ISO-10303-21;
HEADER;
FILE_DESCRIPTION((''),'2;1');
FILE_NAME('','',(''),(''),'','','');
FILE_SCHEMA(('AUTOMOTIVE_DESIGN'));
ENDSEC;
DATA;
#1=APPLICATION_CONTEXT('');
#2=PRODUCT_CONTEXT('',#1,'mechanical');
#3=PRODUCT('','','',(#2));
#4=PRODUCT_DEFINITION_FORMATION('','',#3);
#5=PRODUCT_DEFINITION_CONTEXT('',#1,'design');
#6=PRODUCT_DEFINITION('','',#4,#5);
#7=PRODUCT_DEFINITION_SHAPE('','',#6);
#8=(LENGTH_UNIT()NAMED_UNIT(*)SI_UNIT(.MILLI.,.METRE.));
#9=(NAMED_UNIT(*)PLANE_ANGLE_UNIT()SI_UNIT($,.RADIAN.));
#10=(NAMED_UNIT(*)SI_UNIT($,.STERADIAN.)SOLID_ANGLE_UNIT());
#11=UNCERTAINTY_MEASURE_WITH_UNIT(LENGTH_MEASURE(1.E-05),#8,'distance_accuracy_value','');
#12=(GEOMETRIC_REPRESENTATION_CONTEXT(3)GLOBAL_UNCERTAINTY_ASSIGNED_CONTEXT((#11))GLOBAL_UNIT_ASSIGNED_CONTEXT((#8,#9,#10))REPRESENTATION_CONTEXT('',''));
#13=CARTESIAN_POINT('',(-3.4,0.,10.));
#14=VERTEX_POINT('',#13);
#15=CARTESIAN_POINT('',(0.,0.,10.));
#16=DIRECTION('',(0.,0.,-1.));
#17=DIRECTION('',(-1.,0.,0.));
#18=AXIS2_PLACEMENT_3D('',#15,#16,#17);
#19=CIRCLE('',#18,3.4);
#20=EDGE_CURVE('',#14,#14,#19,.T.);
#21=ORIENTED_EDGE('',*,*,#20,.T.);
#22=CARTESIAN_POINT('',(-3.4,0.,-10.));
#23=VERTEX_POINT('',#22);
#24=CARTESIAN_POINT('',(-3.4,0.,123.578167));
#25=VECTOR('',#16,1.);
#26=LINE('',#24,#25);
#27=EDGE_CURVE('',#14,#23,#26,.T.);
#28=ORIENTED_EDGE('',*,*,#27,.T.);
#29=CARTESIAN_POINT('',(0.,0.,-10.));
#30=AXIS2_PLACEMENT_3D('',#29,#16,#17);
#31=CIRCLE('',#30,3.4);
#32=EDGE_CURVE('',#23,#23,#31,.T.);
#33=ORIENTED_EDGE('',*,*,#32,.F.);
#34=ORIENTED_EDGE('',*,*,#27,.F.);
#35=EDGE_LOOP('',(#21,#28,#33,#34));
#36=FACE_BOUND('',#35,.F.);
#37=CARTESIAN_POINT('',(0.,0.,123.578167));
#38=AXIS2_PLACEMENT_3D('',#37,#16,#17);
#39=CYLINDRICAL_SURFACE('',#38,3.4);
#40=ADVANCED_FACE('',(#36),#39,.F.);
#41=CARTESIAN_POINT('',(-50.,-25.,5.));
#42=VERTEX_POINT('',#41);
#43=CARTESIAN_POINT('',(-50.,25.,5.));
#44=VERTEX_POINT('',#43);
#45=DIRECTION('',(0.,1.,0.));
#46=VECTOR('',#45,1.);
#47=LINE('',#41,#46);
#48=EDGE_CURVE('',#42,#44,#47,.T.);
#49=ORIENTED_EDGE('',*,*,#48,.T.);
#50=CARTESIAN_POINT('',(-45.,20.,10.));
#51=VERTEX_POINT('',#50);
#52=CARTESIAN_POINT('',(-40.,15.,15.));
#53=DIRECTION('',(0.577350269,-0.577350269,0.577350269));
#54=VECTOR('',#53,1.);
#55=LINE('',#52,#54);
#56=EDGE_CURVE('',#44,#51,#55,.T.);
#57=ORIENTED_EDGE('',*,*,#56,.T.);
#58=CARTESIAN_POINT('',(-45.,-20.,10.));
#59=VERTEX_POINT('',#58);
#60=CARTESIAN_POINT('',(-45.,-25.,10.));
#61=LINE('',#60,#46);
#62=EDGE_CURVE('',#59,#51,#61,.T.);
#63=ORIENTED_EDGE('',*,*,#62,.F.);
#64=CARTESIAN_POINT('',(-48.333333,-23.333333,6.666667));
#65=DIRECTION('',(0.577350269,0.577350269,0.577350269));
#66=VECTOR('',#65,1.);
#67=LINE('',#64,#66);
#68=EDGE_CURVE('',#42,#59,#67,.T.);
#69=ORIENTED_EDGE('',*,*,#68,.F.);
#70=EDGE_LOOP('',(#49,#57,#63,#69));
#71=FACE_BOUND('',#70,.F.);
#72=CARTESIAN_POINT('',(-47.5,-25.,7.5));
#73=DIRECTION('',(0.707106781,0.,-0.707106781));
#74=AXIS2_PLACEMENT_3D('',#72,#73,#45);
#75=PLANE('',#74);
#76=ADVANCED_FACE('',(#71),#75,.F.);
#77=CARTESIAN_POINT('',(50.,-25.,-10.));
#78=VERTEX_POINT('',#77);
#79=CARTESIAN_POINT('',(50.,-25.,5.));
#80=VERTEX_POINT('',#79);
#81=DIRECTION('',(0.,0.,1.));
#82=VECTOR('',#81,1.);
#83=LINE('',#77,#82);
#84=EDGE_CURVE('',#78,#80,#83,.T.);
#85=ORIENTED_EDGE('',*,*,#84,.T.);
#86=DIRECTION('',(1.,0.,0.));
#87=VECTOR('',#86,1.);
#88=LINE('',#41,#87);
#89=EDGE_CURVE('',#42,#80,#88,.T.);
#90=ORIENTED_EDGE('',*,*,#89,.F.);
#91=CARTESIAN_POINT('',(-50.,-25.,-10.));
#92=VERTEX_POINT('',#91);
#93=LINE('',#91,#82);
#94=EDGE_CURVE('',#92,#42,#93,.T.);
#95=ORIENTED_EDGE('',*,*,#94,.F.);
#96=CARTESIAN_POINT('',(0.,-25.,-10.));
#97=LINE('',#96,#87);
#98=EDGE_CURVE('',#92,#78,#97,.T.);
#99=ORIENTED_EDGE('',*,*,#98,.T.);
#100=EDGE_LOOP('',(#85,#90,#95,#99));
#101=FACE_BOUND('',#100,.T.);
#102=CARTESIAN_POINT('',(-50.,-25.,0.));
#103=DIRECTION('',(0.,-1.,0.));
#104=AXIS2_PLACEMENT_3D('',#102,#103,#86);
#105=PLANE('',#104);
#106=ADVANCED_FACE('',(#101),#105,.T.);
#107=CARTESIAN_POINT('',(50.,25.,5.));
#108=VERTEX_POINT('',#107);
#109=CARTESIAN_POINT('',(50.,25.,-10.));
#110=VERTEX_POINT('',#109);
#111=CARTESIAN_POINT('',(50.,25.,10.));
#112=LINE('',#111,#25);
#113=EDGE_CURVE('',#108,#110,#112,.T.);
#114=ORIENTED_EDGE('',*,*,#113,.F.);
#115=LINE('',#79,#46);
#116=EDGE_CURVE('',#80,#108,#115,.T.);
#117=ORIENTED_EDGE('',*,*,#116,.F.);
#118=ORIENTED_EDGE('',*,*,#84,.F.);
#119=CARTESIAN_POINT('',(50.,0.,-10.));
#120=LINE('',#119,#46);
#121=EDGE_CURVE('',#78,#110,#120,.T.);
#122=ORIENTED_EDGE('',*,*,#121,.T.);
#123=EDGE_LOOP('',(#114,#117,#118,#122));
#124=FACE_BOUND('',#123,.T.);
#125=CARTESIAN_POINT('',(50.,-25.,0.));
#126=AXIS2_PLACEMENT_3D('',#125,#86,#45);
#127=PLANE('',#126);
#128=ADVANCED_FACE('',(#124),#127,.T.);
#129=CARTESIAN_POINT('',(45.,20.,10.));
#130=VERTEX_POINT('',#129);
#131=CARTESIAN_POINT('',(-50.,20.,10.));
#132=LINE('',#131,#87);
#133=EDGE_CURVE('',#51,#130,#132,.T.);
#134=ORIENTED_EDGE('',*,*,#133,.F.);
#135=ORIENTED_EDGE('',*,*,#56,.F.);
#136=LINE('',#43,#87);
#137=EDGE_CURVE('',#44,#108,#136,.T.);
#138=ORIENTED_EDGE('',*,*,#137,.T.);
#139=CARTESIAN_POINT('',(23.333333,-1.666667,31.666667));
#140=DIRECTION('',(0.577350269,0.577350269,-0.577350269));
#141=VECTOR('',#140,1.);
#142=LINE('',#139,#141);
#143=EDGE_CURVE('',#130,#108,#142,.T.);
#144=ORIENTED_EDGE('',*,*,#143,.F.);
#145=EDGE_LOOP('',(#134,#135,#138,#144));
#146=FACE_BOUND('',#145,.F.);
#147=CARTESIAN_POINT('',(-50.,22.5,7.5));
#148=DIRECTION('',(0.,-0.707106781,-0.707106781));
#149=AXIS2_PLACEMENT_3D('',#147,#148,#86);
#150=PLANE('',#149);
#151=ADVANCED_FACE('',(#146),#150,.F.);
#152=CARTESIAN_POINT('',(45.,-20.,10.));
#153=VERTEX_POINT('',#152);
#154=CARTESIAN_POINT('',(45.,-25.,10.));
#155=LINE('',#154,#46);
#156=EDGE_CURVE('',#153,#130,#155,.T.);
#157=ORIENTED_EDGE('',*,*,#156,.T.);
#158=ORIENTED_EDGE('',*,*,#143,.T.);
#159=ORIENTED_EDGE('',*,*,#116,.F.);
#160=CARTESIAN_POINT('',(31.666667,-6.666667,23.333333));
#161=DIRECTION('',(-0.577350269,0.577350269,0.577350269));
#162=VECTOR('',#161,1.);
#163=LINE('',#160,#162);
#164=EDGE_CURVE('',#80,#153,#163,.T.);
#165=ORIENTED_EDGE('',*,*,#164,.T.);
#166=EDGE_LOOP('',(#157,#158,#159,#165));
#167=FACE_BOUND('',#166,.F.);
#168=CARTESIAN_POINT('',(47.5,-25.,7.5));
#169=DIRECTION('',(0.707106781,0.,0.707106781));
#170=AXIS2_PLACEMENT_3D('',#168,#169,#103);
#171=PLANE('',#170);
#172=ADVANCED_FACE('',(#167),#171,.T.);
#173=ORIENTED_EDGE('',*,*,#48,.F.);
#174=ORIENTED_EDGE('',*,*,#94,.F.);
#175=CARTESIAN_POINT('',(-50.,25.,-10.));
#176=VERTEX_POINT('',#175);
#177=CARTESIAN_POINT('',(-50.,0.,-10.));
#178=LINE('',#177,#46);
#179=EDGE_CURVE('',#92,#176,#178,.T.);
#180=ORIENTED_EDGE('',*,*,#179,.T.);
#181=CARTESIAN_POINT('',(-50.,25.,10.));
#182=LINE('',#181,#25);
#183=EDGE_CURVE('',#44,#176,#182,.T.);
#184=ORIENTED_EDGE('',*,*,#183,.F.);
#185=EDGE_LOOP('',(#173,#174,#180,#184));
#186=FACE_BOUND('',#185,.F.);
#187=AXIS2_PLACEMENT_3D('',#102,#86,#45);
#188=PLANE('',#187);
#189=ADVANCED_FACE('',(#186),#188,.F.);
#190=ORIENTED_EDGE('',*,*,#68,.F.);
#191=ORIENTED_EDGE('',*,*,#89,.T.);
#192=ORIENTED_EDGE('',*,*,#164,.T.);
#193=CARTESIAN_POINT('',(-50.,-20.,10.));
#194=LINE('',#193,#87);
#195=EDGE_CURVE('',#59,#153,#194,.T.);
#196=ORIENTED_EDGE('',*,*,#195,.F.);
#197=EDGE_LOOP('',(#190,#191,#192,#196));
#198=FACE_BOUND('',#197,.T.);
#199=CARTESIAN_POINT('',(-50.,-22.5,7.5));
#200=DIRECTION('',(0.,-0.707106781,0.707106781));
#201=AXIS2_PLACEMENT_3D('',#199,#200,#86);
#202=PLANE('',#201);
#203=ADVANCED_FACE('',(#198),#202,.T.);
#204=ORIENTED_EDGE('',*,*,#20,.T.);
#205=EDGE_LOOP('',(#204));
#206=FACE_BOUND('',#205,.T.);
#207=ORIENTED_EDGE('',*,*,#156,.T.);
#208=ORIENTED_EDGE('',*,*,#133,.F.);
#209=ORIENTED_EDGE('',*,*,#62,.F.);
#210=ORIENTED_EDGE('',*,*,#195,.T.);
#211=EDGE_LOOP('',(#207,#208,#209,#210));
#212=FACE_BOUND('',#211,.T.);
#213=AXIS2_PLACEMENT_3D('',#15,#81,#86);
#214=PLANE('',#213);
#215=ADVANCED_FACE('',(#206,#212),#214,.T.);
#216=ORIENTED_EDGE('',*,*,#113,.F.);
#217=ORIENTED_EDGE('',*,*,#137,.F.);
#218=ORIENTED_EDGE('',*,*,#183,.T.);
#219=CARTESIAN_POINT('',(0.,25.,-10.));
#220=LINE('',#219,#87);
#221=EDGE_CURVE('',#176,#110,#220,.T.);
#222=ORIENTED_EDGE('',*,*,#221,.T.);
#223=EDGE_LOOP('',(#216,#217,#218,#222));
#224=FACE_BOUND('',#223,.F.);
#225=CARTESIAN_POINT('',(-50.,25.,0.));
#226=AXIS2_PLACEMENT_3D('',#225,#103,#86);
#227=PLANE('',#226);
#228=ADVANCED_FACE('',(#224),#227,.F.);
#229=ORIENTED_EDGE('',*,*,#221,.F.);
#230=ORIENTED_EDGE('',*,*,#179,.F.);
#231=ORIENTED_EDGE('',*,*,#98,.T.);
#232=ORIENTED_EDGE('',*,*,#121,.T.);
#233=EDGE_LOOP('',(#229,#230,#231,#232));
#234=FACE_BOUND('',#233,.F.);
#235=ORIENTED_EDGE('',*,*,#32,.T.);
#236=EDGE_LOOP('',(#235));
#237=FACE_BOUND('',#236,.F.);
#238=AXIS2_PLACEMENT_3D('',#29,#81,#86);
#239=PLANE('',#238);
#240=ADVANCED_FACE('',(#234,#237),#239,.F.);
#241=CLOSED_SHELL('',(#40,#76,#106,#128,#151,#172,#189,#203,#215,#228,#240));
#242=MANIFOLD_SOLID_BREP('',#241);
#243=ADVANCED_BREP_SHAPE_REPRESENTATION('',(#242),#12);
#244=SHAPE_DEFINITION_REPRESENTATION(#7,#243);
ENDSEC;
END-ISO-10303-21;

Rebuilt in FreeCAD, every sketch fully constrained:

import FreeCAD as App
import Part
import Sketcher

V = App.Vector


def edges_at(feature, points):
    """Names of the edges that pass closest to the given points."""
    edges = feature.Shape.Edges
    near = lambda p: min(range(len(edges)), key=lambda i: edges[i].distToShape(Part.Vertex(*p))[0])
    return sorted({f"Edge{near(p) + 1}" for p in points})

doc = App.newDocument("Part")
params = doc.addObject("Spreadsheet::Sheet", "Params")
for row, (alias, value) in enumerate([
    ("sketch1_width", "100 mm"),
    ("sketch1_height", "50 mm"),
    ("pad1_length", "20 mm"),
    ("sketch2_diameter", "6.8 mm"),
    ("hole_diameter", "6.8 mm"),
    ("chamfer_size", "5 mm"),
], start=1):
    params.set(f"A{row}", alias)
    params.set(f"B{row}", "=" + value)
    params.setAlias(f"B{row}", alias)

body = doc.addObject("PartDesign::Body", "Body")

sketch1 = body.newObject("Sketcher::SketchObject", "Sketch")
sketch1.AttachmentSupport = (doc.getObject("XY_Plane"), [""])
sketch1.MapMode = "FlatFace"
sketch1.addGeometry([
    Part.LineSegment(V(-50, 25, 0), V(-50, -25, 0)),
    Part.LineSegment(V(-50, -25, 0), V(50, -25, 0)),
    Part.LineSegment(V(50, -25, 0), V(50, 25, 0)),
    Part.LineSegment(V(50, 25, 0), V(-50, 25, 0)),
], False)
sketch1.addConstraint([
    Sketcher.Constraint("Coincident", 0, 2, 1, 1),
    Sketcher.Constraint("Coincident", 1, 2, 2, 1),
    Sketcher.Constraint("Coincident", 2, 2, 3, 1),
    Sketcher.Constraint("Coincident", 3, 2, 0, 1),
    Sketcher.Constraint("Vertical", 0),
    Sketcher.Constraint("Horizontal", 1),
    Sketcher.Constraint("Vertical", 2),
    Sketcher.Constraint("Horizontal", 3),
    Sketcher.Constraint("Symmetric", 0, 2, 2, 2, -1, 1),
    Sketcher.Constraint("DistanceX", 1, 1, 1, 2, 100.0),
    Sketcher.Constraint("DistanceY", 0, 2, 0, 1, 50.0),
])
sketch1.setExpression("Constraints[9]", "Params.sketch1_width")
sketch1.setExpression("Constraints[10]", "Params.sketch1_height")
pad1 = body.newObject("PartDesign::Pad", "Pad")
pad1.Profile = sketch1
pad1.setExpression("Length", "Params.pad1_length")
pad1.Midplane = True

sketch2 = body.newObject("Sketcher::SketchObject", "Sketch001")
sketch2.AttachmentSupport = (doc.getObject("XY_Plane"), [""])
sketch2.MapMode = "FlatFace"
sketch2.AttachmentOffset = App.Placement(V(0, 0, 10), App.Rotation())
sketch2.addGeometry(Part.Circle(V(0, 0, 0), V(0, 0, 1), 3.4), False)
sketch2.addConstraint([
    Sketcher.Constraint("Coincident", 0, 3, -1, 1),
    Sketcher.Constraint("Diameter", 0, 6.8),
])
sketch2.setExpression("Constraints[1]", "Params.sketch2_diameter")
doc.recompute()
hole = body.newObject("PartDesign::Hole", "Hole")
hole.Profile = sketch2
hole.ThreadType = "None"
hole.setExpression("Diameter", "Params.hole_diameter")
hole.DepthType = "ThroughAll"
doc.recompute()

chamfer = body.newObject("PartDesign::Chamfer", "Chamfer")
chamfer.Base = (hole, edges_at(hole, [
    (-50, 0, 10),
    (0, -25, 10),
    (50, 0, 10),
    (0, 25, 10),
]))
chamfer.setExpression("Size", "Params.chamfer_size")

doc.recompute()
